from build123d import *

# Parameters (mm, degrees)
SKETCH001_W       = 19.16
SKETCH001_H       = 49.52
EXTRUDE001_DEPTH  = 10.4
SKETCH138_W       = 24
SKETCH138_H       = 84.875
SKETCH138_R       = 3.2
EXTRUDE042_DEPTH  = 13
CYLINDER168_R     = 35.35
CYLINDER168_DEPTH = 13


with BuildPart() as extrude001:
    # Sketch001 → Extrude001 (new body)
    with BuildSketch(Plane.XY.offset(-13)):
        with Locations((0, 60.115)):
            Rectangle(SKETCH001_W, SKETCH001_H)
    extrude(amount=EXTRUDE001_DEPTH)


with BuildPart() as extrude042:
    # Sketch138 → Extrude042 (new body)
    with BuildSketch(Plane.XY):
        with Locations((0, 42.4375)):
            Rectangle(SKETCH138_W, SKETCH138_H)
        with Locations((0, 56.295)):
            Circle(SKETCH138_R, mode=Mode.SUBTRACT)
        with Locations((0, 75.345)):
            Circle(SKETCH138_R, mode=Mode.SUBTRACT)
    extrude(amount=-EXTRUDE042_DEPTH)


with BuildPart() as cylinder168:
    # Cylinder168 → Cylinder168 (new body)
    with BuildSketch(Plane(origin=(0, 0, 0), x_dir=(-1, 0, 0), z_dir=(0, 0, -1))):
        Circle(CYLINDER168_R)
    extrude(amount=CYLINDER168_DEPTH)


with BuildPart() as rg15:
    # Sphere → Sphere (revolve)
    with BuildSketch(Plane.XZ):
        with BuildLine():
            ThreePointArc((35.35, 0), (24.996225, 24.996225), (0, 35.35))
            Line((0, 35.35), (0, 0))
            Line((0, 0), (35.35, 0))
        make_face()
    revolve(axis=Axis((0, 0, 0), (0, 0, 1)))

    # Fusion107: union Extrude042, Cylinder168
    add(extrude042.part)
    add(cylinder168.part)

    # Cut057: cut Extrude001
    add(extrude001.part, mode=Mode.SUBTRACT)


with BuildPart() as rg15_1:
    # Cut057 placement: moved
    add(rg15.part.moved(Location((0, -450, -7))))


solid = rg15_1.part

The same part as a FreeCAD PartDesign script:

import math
import FreeCAD as App
import Part
import Sketcher

doc = App.newDocument("Part")
body = doc.addObject("PartDesign::Body", "Body")

sketch1 = body.newObject("Sketcher::SketchObject", "Sketch")
sketch1.AttachmentSupport = (doc.getObject("XY_Plane"), [""])
sketch1.MapMode = "FlatFace"
sketch1.AttachmentOffset = App.Placement(App.Vector(0, 0, -13), App.Rotation())
sketch1.addGeometry([
    Part.LineSegment(App.Vector(-10, 85, 0), App.Vector(-10, 35, 0)),
    Part.LineSegment(App.Vector(-10, 35, 0), App.Vector(10, 35, 0)),
    Part.LineSegment(App.Vector(10, 35, 0), App.Vector(10, 85, 0)),
    Part.LineSegment(App.Vector(10, 85, 0), App.Vector(-10, 85, 0)),
], False)
sketch1.addConstraint([
    Sketcher.Constraint("Coincident", 0, 2, 1, 1),
    Sketcher.Constraint("Coincident", 1, 2, 2, 1),
    Sketcher.Constraint("Coincident", 2, 2, 3, 1),
    Sketcher.Constraint("Coincident", 3, 2, 0, 1),
    Sketcher.Constraint("Vertical", 0),
    Sketcher.Constraint("Horizontal", 1),
    Sketcher.Constraint("Vertical", 2),
    Sketcher.Constraint("Horizontal", 3),
    Sketcher.Constraint("DistanceX", 1, 1, 1, 2, 19.16),
    Sketcher.Constraint("DistanceY", 0, 2, 0, 1, 49.52),
    Sketcher.Constraint("DistanceX", 0, 2, -1, 1, 9.58),
    Sketcher.Constraint("DistanceY", -1, 1, 0, 2, 35.355),
])
pad1 = body.newObject("PartDesign::Pad", "Pad")
pad1.Profile = sketch1
pad1.Length = 10.4
body2 = doc.addObject("PartDesign::Body", "Body001")

sketch2 = body2.newObject("Sketcher::SketchObject", "Sketch001")
sketch2.AttachmentSupport = (doc.getObject("XY_Plane001"), [""])
sketch2.MapMode = "FlatFace"
sketch2.addGeometry([
    Part.LineSegment(App.Vector(-12, 84.9, 0), App.Vector(-12, 0, 0)),
    Part.LineSegment(App.Vector(-12, 0, 0), App.Vector(12, 0, 0)),
    Part.LineSegment(App.Vector(12, 0, 0), App.Vector(12, 84.9, 0)),
    Part.LineSegment(App.Vector(12, 84.9, 0), App.Vector(-12, 84.9, 0)),
    Part.Circle(App.Vector(0, 56.3, 0), App.Vector(0, 0, 1), 3.2),
    Part.Circle(App.Vector(0, 75.3, 0), App.Vector(0, 0, 1), 3.2),
], False)
sketch2.addConstraint([
    Sketcher.Constraint("Coincident", 0, 2, 1, 1),
    Sketcher.Constraint("Coincident", 1, 2, 2, 1),
    Sketcher.Constraint("Coincident", 2, 2, 3, 1),
    Sketcher.Constraint("Coincident", 3, 2, 0, 1),
    Sketcher.Constraint("Vertical", 0),
    Sketcher.Constraint("Horizontal", 1),
    Sketcher.Constraint("Vertical", 2),
    Sketcher.Constraint("Horizontal", 3),
    Sketcher.Constraint("Equal", 4, 5),
    Sketcher.Constraint("Symmetric", 0, 2, 1, 2, -1, 1),
    Sketcher.Constraint("PointOnObject", 4, 3, -2),
    Sketcher.Constraint("PointOnObject", 5, 3, -2),
    Sketcher.Constraint("Diameter", 4, 6.4),
    Sketcher.Constraint("DistanceX", 1, 1, 1, 2, 24.0),
    Sketcher.Constraint("DistanceY", 0, 2, 0, 1, 84.875),
    Sketcher.Constraint("DistanceY", 4, 3, 5, 3, 19.05),
    Sketcher.Constraint("DistanceY", 5, 3, 2, 2, 9.53),
])
pad2 = body2.newObject("PartDesign::Pad", "Pad001")
pad2.Profile = sketch2
pad2.Length = 13
pad2.Reversed = True
body3 = doc.addObject("PartDesign::Body", "Body002")

sketch3 = body3.newObject("Sketcher::SketchObject", "Sketch002")
sketch3.AttachmentSupport = (doc.getObject("XY_Plane002"), [""])
sketch3.MapMode = "FlatFace"
sketch3.addGeometry(Part.Circle(App.Vector(0, 0, 0), App.Vector(0, 0, 1), 35), False)
sketch3.addConstraint([
    Sketcher.Constraint("Coincident", 0, 3, -1, 1),
    Sketcher.Constraint("Diameter", 0, 70.7),
])
pad3 = body3.newObject("PartDesign::Pad", "Pad002")
pad3.Profile = sketch3
pad3.Length = 13
pad3.Reversed = True
body4 = doc.addObject("PartDesign::Body", "Body003")

sketch4 = body4.newObject("Sketcher::SketchObject", "Sketch003")
sketch4.AttachmentSupport = (doc.getObject("XZ_Plane003"), [""])
sketch4.MapMode = "FlatFace"
sketch4.addGeometry([
    Part.ArcOfCircle(Part.Circle(App.Vector(0, 0, 0), App.Vector(0, 0, 1), 35), math.radians(0), math.radians(90)),
    Part.LineSegment(App.Vector(0, 35, 0), App.Vector(0, 0, 0)),
    Part.LineSegment(App.Vector(0, 0, 0), App.Vector(35, 0, 0)),
], False)
sketch4.addConstraint([
    Sketcher.Constraint("Coincident", 0, 2, 1, 1),
    Sketcher.Constraint("Coincident", 1, 2, 2, 1),
    Sketcher.Constraint("Coincident", 2, 2, 0, 1),
    Sketcher.Constraint("Vertical", 1),
    Sketcher.Constraint("Horizontal", 2),
    Sketcher.Constraint("Coincident", 0, 3, -1, 1),
    Sketcher.Constraint("Coincident", 1, 2, -1, 1),
    Sketcher.Constraint("Radius", 0, 35.349999),
])
revolution = body4.newObject("PartDesign::Revolution", "Revolution")
revolution.Profile = sketch4
revolution.ReferenceAxis = (sketch4, ["V_Axis"])
revolution.Angle = 360
doc.recompute()

boolean = body4.newObject("PartDesign::Boolean", "Boolean")
boolean.Type = "Fuse"
boolean.addObjects([body2])
doc.recompute()

boolean2 = body4.newObject("PartDesign::Boolean", "Boolean001")
boolean2.Type = "Fuse"
boolean2.addObjects([body3])
doc.recompute()

boolean3 = body4.newObject("PartDesign::Boolean", "Boolean002")
boolean3.Type = "Cut"
boolean3.addObjects([body])
body5 = doc.addObject("PartDesign::Body", "Body004")
doc.recompute()

body4.Placement = App.Placement(App.Vector(0, -450, -7), App.Rotation(App.Vector(0, 0, 1), 0))
boolean4 = body5.newObject("PartDesign::Boolean", "Boolean003")
boolean4.Type = "Fuse"
boolean4.addObjects([body4])

doc.recompute()
